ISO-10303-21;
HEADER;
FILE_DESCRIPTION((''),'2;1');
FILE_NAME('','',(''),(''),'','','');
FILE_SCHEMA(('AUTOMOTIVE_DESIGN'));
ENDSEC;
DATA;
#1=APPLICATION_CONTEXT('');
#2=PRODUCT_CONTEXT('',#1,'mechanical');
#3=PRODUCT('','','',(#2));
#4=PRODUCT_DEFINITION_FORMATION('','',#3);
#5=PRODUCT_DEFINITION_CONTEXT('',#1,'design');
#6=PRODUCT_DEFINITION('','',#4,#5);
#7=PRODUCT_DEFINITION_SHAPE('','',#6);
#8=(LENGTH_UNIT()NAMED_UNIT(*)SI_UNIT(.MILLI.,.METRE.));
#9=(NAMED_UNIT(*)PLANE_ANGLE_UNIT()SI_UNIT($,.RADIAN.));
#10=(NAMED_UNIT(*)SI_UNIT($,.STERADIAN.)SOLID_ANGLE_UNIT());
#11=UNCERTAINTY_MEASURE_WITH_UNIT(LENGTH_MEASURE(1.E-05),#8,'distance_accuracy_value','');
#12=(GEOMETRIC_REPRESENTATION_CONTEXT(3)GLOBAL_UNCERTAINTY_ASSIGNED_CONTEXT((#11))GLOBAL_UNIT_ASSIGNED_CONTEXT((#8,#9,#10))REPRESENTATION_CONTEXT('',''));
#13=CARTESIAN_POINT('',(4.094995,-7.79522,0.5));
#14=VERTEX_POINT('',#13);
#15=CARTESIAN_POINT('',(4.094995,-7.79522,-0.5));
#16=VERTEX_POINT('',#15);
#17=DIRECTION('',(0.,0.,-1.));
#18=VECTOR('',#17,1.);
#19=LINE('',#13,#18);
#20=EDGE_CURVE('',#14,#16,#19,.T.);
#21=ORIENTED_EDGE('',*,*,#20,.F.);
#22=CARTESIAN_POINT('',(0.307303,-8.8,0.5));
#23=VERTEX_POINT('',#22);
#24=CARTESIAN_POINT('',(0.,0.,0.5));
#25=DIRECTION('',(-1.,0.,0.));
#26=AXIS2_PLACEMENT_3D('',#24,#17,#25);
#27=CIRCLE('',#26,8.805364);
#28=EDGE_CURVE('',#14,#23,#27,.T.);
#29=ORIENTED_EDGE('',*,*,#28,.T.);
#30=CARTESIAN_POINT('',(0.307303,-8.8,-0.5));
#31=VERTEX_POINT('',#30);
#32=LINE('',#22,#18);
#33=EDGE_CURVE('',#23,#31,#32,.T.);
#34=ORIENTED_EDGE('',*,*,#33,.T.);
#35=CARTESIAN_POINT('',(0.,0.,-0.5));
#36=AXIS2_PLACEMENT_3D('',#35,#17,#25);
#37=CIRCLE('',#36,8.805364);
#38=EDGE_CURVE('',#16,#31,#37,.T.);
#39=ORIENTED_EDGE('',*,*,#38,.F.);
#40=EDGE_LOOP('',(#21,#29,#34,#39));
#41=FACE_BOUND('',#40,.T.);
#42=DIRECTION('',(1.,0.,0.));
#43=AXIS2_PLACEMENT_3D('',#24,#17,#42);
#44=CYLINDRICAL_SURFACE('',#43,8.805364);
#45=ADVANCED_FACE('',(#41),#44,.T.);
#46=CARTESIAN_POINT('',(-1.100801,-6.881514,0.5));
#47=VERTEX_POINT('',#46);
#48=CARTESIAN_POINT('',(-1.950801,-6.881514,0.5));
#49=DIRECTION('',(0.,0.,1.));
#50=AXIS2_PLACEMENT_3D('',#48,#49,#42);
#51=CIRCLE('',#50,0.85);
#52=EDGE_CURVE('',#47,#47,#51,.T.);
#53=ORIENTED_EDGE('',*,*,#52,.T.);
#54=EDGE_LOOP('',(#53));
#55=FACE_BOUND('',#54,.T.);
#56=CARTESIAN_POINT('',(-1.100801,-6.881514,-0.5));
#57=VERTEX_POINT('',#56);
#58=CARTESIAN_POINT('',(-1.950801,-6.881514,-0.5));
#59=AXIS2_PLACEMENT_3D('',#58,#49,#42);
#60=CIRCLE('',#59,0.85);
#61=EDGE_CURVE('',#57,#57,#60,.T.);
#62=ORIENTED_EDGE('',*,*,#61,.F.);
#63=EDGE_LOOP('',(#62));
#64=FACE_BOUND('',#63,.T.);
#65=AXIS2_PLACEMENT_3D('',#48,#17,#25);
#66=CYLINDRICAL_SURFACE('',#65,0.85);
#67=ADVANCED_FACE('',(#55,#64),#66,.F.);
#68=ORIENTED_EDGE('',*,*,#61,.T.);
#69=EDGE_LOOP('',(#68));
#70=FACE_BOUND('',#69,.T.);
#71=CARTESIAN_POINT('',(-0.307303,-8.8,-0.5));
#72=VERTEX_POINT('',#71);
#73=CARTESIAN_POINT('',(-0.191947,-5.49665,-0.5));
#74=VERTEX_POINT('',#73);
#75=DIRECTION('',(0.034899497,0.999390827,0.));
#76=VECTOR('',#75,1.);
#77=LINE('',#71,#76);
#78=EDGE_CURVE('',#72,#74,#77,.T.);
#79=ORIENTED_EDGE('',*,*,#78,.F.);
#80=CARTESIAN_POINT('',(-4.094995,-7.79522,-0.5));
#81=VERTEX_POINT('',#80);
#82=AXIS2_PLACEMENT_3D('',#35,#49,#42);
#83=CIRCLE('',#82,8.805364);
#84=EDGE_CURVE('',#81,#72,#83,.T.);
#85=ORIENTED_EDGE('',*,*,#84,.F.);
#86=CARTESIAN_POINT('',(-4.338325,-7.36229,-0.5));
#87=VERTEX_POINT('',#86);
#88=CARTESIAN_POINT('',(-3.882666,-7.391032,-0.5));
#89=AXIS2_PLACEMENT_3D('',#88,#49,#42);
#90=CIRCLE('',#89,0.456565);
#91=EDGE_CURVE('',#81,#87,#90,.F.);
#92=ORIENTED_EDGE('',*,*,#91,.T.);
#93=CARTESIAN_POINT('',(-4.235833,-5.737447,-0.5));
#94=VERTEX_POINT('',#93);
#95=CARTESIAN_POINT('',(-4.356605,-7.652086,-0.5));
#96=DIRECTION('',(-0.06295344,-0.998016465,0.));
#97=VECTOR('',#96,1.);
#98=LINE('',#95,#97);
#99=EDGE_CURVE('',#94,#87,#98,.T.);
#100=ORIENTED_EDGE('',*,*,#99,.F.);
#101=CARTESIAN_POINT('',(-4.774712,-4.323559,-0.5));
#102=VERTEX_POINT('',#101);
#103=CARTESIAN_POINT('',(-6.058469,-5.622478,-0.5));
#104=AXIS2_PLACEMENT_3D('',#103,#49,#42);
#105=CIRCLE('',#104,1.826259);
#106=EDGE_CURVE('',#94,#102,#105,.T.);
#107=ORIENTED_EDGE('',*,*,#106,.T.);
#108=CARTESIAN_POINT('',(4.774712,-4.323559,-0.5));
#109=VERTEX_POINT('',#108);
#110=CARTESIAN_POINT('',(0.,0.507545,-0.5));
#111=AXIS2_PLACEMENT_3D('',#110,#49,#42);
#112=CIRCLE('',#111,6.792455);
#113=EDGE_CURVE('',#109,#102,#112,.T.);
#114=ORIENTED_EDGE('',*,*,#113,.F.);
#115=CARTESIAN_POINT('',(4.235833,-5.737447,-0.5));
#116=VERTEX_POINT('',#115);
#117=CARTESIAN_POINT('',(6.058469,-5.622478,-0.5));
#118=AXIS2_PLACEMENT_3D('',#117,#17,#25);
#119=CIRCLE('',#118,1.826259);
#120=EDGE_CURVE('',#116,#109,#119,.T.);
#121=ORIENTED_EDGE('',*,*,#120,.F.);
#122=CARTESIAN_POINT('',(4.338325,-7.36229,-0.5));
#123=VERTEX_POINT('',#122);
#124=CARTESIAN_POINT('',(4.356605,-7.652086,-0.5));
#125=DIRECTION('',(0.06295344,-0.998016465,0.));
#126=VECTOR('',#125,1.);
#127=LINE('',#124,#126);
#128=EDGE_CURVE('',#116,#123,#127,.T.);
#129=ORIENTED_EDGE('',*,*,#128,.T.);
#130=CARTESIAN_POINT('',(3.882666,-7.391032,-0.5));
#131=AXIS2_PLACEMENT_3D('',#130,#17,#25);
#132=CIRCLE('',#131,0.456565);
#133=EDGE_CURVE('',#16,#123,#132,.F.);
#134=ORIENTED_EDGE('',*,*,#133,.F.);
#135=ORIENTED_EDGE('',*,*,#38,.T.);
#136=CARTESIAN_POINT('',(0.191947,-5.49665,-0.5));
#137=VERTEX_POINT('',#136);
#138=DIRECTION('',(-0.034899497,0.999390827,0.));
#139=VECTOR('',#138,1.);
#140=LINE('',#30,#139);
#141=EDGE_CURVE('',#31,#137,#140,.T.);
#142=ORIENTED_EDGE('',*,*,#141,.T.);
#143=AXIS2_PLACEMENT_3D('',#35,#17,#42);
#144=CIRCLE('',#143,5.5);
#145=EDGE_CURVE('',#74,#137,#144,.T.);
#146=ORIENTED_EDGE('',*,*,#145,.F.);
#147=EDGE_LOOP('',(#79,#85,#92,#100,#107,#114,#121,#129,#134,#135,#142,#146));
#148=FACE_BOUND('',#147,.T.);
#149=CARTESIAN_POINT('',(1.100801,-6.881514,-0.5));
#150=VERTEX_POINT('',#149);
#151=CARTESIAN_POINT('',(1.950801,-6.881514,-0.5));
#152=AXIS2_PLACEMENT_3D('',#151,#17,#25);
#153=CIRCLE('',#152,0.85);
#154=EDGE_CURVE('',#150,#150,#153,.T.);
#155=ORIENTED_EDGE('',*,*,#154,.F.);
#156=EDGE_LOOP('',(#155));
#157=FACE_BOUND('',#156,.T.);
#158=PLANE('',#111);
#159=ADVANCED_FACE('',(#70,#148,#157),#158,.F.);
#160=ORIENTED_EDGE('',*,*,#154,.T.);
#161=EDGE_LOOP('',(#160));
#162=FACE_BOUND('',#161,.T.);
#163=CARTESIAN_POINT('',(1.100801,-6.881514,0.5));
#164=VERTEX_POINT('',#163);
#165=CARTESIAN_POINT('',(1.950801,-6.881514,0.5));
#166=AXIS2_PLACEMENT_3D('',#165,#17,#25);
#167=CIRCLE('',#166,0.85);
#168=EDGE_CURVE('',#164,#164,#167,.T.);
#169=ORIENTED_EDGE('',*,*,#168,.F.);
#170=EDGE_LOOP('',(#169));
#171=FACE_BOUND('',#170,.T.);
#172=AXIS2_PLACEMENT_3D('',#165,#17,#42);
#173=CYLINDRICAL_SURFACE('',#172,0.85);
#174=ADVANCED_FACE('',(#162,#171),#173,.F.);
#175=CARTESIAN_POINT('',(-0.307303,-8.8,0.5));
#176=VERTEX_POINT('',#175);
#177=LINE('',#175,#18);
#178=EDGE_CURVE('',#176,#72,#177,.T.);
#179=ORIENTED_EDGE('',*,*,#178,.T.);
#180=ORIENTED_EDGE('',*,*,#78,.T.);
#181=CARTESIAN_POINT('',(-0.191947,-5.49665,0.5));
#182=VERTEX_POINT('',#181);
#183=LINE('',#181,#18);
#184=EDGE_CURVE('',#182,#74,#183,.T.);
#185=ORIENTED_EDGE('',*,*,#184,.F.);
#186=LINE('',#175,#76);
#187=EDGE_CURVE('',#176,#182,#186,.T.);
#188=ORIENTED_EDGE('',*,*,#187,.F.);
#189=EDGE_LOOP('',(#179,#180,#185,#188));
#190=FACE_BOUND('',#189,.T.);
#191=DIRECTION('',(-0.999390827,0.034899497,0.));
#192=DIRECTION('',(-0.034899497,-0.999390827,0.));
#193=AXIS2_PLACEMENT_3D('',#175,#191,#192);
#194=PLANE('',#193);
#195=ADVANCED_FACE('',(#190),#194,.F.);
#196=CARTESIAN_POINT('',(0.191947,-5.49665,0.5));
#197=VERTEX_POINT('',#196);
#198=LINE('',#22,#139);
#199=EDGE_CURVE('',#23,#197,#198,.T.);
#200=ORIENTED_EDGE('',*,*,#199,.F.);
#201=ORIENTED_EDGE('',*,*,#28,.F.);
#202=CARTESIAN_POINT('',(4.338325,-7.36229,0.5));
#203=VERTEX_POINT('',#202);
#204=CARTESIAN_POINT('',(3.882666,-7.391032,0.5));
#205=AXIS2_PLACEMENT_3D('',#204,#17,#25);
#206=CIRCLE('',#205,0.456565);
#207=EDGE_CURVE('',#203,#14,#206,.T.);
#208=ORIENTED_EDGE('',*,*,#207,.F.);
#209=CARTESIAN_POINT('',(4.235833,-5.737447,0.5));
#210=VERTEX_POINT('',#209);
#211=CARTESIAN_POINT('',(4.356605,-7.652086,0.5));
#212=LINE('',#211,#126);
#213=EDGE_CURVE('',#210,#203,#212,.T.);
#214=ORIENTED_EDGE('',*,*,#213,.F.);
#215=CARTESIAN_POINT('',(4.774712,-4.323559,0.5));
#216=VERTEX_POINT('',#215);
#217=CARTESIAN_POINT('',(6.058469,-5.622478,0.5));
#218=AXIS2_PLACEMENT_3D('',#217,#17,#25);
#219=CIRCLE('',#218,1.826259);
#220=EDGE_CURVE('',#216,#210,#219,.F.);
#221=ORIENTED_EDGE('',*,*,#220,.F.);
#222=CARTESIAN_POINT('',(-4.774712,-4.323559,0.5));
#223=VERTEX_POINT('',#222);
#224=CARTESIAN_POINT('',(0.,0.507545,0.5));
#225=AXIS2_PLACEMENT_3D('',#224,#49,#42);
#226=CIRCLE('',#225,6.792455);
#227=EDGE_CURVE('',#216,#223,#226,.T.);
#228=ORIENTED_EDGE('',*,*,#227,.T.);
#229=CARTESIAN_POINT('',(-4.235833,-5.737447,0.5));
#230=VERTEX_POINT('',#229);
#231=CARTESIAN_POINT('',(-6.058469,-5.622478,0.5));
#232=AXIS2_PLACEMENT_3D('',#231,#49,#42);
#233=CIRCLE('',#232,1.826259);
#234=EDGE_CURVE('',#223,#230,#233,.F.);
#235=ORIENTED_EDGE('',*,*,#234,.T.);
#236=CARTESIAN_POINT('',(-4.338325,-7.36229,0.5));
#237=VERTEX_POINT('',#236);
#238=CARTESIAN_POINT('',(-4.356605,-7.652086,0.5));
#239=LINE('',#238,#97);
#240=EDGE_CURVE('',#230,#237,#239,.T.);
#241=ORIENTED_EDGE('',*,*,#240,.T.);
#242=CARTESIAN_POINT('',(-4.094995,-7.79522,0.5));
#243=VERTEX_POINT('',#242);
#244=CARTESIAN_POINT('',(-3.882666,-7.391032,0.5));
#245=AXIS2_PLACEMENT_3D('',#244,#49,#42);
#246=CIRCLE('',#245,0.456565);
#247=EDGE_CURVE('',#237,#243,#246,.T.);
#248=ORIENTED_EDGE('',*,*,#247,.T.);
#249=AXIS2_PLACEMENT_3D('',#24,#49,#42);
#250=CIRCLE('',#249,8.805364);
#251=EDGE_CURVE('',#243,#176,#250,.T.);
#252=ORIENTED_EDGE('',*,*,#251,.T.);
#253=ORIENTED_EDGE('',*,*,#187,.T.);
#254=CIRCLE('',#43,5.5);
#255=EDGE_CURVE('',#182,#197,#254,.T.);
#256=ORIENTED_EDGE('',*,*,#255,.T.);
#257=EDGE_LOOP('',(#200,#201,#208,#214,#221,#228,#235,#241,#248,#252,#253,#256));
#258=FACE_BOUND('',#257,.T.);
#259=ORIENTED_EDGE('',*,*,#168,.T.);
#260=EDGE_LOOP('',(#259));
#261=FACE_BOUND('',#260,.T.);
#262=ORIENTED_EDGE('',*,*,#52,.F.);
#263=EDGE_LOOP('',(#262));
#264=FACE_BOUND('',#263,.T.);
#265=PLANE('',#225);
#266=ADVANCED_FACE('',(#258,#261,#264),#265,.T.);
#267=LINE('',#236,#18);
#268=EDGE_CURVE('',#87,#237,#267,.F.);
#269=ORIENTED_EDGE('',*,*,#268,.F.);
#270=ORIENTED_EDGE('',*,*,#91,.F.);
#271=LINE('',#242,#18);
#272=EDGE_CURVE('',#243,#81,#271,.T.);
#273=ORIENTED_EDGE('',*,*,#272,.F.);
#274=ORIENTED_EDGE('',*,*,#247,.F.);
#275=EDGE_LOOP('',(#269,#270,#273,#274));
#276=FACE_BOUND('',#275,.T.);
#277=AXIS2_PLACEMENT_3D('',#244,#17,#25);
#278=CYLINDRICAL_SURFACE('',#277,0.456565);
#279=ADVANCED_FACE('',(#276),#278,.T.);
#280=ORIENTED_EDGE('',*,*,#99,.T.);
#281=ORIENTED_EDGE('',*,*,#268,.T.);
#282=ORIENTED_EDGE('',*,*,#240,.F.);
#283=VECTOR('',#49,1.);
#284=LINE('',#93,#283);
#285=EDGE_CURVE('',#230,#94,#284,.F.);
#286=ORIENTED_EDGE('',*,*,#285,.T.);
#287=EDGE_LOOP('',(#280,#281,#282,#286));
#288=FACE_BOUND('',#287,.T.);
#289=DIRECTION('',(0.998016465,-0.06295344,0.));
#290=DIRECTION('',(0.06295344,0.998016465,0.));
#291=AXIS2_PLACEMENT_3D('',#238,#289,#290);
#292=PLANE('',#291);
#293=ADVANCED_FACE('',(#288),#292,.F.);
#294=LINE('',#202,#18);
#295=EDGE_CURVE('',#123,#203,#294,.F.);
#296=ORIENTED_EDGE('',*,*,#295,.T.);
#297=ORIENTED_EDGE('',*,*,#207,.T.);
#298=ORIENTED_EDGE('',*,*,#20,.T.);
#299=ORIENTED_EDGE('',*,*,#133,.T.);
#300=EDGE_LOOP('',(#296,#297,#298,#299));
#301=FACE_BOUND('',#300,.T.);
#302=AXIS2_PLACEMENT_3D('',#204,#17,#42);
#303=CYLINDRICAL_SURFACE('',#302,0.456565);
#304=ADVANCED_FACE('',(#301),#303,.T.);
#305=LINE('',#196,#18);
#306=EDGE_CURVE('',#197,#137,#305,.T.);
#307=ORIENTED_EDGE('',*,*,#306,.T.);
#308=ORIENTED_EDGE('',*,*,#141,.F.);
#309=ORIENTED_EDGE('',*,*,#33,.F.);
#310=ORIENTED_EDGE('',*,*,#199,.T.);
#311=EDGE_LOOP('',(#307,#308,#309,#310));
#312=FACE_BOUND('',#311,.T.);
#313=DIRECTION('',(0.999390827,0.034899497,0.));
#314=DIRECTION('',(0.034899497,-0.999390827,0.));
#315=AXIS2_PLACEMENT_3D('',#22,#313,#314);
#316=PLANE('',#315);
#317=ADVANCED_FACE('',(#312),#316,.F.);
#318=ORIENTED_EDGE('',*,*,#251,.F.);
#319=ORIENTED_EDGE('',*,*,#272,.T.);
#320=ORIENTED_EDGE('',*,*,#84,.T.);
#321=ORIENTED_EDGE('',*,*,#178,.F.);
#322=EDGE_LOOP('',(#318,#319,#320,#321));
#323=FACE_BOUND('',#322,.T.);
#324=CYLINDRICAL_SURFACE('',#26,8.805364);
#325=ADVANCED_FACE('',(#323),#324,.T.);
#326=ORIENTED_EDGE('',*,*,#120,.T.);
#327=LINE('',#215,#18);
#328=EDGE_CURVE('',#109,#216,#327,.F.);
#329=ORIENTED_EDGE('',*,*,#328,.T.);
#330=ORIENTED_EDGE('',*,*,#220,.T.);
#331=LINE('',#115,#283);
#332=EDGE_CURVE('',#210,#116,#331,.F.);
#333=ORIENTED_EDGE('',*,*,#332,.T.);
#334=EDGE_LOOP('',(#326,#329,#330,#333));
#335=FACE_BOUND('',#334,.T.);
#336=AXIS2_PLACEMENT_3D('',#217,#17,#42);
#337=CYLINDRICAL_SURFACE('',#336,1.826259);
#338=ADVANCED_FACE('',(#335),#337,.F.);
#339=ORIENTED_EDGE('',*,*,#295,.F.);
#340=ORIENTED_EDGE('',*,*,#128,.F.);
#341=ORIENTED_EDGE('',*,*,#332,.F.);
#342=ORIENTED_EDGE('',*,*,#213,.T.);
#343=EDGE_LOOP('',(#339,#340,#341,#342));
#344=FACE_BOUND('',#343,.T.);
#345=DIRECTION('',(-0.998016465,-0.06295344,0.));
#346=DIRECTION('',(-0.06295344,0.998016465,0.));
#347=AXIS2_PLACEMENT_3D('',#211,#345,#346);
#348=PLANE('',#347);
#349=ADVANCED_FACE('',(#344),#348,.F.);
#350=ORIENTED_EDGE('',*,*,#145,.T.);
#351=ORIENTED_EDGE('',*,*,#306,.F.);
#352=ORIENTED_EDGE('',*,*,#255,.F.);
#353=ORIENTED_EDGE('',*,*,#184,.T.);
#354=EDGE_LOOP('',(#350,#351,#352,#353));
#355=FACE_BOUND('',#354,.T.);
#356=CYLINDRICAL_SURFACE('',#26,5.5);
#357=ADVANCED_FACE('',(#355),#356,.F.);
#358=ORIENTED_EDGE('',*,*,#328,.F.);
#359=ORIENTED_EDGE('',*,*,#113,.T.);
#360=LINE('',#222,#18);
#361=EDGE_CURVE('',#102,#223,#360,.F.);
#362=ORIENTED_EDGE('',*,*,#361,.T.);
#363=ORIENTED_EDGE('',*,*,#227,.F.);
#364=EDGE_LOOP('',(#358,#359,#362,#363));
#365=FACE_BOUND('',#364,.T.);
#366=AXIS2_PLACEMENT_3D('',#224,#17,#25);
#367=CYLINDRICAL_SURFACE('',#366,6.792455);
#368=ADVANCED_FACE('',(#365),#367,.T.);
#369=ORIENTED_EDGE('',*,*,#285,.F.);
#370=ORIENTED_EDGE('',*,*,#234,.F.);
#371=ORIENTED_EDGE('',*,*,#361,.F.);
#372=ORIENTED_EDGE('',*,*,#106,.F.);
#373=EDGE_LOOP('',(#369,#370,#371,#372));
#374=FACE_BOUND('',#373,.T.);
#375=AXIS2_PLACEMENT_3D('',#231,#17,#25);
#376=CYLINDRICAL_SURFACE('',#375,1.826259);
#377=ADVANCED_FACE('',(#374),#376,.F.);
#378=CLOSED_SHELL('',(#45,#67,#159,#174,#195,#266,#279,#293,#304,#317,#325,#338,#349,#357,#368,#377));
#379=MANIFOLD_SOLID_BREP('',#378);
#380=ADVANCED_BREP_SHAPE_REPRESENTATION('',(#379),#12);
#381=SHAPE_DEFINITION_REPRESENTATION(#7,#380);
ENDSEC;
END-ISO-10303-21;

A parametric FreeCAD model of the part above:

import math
import FreeCAD as App
import Part
import Sketcher
from FreeCAD import Vector
Q = App.Units.Quantity


def edges_at(feature, points):
    """Names of the edges that pass closest to the given points."""
    edges = feature.Shape.Edges
    near = lambda p: min(range(len(edges)), key=lambda i: edges[i].distToShape(Part.Vertex(*p))[0])
    return sorted({f"Edge{near(p) + 1}" for p in points})

doc = App.newDocument("Part")
params = doc.addObject("Spreadsheet::Sheet", "Params")
for row, (alias, value) in enumerate([
    ("sketch1_diameter", "1.7 mm"),
    ("sketch1_radius", "5.5 mm"),
    ("sketch1_height", "1.8 mm"),
    ("pad1_length", "1 mm"),
    ("fillet_radius", "1.826259 mm"),
    ("fillet2_radius", "0.456565 mm"),
], start=1):
    params.set(f"A{row}", alias)
    params.set(f"B{row}", "=" + value)
    params.setAlias(f"B{row}", alias)

body = doc.addObject("PartDesign::Body", "Body")

sketch1 = body.newObject("Sketcher::SketchObject", "Sketch")
sketch1.AttachmentSupport = (doc.getObject("XY_Plane"), [""])
sketch1.MapMode = "FlatFace"
sketch1.addGeometry([
    Part.LineSegment(Vector(-4.179646, -4.846706, 0), Vector(-4.356605, -7.652086, 0)),
    Part.ArcOfCircle(Part.Circle(Vector(0, 0, 0), Vector(0, 0, 1), 8.805364), math.radians(-119.654401), math.radians(-92)),
    Part.LineSegment(Vector(-0.307303, -8.8, 0), Vector(-0.191947, -5.49665, 0)),
    Part.ArcOfCircle(Part.Circle(Vector(0, 0, 0), Vector(0, 0, 1), 5.5), math.radians(90), math.radians(268)),
    Part.LineSegment(Vector(0, 5.5, 0), Vector(0, 7.3, 0)),
    Part.ArcOfCircle(Part.Circle(Vector(0, 0.507545, 0), Vector(0, 0, 1), 6.792455), math.radians(90), math.radians(232.02362)),
    Part.Circle(Vector(-1.950801, -6.881514, 0), Vector(0, 0, 1), 0.85),
], False)
sketch1.addConstraint([
    Sketcher.Constraint("Coincident", 0, 2, 1, 1),
    Sketcher.Constraint("Coincident", 1, 2, 2, 1),
    Sketcher.Constraint("Coincident", 2, 2, 3, 2),
    Sketcher.Constraint("Coincident", 3, 1, 4, 1),
    Sketcher.Constraint("Coincident", 4, 2, 5, 1),
    Sketcher.Constraint("Coincident", 5, 2, 0, 1),
    Sketcher.Constraint("Vertical", 4),
    Sketcher.Constraint("Coincident", 1, 3, -1, 1),
    Sketcher.Constraint("Coincident", 3, 3, -1, 1),
    Sketcher.Constraint("PointOnObject", 5, 3, -2),
    Sketcher.Constraint("PointOnObject", 3, 1, -2),
    Sketcher.Constraint("Diameter", 6, Q("1.7 mm")),
    Sketcher.Constraint("Radius", 3, Q("5.5 mm")),
    Sketcher.Constraint("Angle", 2, Q("88 deg")),
    Sketcher.Constraint("DistanceY", 4, 1, 4, 2, Q("1.8 mm")),
    Sketcher.Constraint("DistanceY", 1, 2, -1, 1, Q("8.8 mm")),
    Sketcher.Constraint("Radius", 1, Q("8.805364 mm")),
    Sketcher.Constraint("Radius", 5, Q("6.792455 mm")),
    Sketcher.Constraint("DistanceX", 6, 3, -1, 1, Q("1.950801 mm")),
    Sketcher.Constraint("DistanceX", 5, 2, 2, 2, Q("3.987699 mm")),
    Sketcher.Constraint("DistanceY", 6, 3, 5, 3, Q("7.389059 mm")),
    Sketcher.Constraint("DistanceY", 0, 2, 5, 3, Q("8.159631 mm")),
])
sketch1.setExpression("Constraints[11]", "Params.sketch1_diameter")
sketch1.setExpression("Constraints[12]", "Params.sketch1_radius")
sketch1.setExpression("Constraints[14]", "Params.sketch1_height")
pad1 = body.newObject("PartDesign::Pad", "Pad")
pad1.Profile = sketch1
pad1.setExpression("Length", "Params.pad1_length")
pad1.Midplane = True
doc.recompute()

fillet = body.newObject("PartDesign::Fillet", "Fillet")
fillet.Base = (pad1, edges_at(pad1, [(-4.18, -4.847, 0)]))
fillet.setExpression("Radius", "Params.fillet_radius")
doc.recompute()

fillet2 = body.newObject("PartDesign::Fillet", "Fillet001")
fillet2.Base = (fillet, edges_at(fillet, [(-4.357, -7.652, 0)]))
fillet2.setExpression("Radius", "Params.fillet2_radius")
body2 = doc.addObject("PartDesign::Body", "Body001")
doc.recompute()

body2.BaseFeature = body
doc.recompute()

mirroring = doc.addObject("Part::Mirroring", "Mirroring")
mirroring.Source = body
mirroring.Base = Vector(0, 7.3, 0.5)
mirroring.Normal = Vector(-1, 0, 0)
body3 = doc.addObject("PartDesign::Body", "Body002")
body3.BaseFeature = mirroring
boolean = body2.newObject("PartDesign::Boolean", "Boolean")
boolean.Type = "Fuse"
boolean.addObjects([body3])
doc.recompute()
mirroring.Visibility = False

doc.recompute()
